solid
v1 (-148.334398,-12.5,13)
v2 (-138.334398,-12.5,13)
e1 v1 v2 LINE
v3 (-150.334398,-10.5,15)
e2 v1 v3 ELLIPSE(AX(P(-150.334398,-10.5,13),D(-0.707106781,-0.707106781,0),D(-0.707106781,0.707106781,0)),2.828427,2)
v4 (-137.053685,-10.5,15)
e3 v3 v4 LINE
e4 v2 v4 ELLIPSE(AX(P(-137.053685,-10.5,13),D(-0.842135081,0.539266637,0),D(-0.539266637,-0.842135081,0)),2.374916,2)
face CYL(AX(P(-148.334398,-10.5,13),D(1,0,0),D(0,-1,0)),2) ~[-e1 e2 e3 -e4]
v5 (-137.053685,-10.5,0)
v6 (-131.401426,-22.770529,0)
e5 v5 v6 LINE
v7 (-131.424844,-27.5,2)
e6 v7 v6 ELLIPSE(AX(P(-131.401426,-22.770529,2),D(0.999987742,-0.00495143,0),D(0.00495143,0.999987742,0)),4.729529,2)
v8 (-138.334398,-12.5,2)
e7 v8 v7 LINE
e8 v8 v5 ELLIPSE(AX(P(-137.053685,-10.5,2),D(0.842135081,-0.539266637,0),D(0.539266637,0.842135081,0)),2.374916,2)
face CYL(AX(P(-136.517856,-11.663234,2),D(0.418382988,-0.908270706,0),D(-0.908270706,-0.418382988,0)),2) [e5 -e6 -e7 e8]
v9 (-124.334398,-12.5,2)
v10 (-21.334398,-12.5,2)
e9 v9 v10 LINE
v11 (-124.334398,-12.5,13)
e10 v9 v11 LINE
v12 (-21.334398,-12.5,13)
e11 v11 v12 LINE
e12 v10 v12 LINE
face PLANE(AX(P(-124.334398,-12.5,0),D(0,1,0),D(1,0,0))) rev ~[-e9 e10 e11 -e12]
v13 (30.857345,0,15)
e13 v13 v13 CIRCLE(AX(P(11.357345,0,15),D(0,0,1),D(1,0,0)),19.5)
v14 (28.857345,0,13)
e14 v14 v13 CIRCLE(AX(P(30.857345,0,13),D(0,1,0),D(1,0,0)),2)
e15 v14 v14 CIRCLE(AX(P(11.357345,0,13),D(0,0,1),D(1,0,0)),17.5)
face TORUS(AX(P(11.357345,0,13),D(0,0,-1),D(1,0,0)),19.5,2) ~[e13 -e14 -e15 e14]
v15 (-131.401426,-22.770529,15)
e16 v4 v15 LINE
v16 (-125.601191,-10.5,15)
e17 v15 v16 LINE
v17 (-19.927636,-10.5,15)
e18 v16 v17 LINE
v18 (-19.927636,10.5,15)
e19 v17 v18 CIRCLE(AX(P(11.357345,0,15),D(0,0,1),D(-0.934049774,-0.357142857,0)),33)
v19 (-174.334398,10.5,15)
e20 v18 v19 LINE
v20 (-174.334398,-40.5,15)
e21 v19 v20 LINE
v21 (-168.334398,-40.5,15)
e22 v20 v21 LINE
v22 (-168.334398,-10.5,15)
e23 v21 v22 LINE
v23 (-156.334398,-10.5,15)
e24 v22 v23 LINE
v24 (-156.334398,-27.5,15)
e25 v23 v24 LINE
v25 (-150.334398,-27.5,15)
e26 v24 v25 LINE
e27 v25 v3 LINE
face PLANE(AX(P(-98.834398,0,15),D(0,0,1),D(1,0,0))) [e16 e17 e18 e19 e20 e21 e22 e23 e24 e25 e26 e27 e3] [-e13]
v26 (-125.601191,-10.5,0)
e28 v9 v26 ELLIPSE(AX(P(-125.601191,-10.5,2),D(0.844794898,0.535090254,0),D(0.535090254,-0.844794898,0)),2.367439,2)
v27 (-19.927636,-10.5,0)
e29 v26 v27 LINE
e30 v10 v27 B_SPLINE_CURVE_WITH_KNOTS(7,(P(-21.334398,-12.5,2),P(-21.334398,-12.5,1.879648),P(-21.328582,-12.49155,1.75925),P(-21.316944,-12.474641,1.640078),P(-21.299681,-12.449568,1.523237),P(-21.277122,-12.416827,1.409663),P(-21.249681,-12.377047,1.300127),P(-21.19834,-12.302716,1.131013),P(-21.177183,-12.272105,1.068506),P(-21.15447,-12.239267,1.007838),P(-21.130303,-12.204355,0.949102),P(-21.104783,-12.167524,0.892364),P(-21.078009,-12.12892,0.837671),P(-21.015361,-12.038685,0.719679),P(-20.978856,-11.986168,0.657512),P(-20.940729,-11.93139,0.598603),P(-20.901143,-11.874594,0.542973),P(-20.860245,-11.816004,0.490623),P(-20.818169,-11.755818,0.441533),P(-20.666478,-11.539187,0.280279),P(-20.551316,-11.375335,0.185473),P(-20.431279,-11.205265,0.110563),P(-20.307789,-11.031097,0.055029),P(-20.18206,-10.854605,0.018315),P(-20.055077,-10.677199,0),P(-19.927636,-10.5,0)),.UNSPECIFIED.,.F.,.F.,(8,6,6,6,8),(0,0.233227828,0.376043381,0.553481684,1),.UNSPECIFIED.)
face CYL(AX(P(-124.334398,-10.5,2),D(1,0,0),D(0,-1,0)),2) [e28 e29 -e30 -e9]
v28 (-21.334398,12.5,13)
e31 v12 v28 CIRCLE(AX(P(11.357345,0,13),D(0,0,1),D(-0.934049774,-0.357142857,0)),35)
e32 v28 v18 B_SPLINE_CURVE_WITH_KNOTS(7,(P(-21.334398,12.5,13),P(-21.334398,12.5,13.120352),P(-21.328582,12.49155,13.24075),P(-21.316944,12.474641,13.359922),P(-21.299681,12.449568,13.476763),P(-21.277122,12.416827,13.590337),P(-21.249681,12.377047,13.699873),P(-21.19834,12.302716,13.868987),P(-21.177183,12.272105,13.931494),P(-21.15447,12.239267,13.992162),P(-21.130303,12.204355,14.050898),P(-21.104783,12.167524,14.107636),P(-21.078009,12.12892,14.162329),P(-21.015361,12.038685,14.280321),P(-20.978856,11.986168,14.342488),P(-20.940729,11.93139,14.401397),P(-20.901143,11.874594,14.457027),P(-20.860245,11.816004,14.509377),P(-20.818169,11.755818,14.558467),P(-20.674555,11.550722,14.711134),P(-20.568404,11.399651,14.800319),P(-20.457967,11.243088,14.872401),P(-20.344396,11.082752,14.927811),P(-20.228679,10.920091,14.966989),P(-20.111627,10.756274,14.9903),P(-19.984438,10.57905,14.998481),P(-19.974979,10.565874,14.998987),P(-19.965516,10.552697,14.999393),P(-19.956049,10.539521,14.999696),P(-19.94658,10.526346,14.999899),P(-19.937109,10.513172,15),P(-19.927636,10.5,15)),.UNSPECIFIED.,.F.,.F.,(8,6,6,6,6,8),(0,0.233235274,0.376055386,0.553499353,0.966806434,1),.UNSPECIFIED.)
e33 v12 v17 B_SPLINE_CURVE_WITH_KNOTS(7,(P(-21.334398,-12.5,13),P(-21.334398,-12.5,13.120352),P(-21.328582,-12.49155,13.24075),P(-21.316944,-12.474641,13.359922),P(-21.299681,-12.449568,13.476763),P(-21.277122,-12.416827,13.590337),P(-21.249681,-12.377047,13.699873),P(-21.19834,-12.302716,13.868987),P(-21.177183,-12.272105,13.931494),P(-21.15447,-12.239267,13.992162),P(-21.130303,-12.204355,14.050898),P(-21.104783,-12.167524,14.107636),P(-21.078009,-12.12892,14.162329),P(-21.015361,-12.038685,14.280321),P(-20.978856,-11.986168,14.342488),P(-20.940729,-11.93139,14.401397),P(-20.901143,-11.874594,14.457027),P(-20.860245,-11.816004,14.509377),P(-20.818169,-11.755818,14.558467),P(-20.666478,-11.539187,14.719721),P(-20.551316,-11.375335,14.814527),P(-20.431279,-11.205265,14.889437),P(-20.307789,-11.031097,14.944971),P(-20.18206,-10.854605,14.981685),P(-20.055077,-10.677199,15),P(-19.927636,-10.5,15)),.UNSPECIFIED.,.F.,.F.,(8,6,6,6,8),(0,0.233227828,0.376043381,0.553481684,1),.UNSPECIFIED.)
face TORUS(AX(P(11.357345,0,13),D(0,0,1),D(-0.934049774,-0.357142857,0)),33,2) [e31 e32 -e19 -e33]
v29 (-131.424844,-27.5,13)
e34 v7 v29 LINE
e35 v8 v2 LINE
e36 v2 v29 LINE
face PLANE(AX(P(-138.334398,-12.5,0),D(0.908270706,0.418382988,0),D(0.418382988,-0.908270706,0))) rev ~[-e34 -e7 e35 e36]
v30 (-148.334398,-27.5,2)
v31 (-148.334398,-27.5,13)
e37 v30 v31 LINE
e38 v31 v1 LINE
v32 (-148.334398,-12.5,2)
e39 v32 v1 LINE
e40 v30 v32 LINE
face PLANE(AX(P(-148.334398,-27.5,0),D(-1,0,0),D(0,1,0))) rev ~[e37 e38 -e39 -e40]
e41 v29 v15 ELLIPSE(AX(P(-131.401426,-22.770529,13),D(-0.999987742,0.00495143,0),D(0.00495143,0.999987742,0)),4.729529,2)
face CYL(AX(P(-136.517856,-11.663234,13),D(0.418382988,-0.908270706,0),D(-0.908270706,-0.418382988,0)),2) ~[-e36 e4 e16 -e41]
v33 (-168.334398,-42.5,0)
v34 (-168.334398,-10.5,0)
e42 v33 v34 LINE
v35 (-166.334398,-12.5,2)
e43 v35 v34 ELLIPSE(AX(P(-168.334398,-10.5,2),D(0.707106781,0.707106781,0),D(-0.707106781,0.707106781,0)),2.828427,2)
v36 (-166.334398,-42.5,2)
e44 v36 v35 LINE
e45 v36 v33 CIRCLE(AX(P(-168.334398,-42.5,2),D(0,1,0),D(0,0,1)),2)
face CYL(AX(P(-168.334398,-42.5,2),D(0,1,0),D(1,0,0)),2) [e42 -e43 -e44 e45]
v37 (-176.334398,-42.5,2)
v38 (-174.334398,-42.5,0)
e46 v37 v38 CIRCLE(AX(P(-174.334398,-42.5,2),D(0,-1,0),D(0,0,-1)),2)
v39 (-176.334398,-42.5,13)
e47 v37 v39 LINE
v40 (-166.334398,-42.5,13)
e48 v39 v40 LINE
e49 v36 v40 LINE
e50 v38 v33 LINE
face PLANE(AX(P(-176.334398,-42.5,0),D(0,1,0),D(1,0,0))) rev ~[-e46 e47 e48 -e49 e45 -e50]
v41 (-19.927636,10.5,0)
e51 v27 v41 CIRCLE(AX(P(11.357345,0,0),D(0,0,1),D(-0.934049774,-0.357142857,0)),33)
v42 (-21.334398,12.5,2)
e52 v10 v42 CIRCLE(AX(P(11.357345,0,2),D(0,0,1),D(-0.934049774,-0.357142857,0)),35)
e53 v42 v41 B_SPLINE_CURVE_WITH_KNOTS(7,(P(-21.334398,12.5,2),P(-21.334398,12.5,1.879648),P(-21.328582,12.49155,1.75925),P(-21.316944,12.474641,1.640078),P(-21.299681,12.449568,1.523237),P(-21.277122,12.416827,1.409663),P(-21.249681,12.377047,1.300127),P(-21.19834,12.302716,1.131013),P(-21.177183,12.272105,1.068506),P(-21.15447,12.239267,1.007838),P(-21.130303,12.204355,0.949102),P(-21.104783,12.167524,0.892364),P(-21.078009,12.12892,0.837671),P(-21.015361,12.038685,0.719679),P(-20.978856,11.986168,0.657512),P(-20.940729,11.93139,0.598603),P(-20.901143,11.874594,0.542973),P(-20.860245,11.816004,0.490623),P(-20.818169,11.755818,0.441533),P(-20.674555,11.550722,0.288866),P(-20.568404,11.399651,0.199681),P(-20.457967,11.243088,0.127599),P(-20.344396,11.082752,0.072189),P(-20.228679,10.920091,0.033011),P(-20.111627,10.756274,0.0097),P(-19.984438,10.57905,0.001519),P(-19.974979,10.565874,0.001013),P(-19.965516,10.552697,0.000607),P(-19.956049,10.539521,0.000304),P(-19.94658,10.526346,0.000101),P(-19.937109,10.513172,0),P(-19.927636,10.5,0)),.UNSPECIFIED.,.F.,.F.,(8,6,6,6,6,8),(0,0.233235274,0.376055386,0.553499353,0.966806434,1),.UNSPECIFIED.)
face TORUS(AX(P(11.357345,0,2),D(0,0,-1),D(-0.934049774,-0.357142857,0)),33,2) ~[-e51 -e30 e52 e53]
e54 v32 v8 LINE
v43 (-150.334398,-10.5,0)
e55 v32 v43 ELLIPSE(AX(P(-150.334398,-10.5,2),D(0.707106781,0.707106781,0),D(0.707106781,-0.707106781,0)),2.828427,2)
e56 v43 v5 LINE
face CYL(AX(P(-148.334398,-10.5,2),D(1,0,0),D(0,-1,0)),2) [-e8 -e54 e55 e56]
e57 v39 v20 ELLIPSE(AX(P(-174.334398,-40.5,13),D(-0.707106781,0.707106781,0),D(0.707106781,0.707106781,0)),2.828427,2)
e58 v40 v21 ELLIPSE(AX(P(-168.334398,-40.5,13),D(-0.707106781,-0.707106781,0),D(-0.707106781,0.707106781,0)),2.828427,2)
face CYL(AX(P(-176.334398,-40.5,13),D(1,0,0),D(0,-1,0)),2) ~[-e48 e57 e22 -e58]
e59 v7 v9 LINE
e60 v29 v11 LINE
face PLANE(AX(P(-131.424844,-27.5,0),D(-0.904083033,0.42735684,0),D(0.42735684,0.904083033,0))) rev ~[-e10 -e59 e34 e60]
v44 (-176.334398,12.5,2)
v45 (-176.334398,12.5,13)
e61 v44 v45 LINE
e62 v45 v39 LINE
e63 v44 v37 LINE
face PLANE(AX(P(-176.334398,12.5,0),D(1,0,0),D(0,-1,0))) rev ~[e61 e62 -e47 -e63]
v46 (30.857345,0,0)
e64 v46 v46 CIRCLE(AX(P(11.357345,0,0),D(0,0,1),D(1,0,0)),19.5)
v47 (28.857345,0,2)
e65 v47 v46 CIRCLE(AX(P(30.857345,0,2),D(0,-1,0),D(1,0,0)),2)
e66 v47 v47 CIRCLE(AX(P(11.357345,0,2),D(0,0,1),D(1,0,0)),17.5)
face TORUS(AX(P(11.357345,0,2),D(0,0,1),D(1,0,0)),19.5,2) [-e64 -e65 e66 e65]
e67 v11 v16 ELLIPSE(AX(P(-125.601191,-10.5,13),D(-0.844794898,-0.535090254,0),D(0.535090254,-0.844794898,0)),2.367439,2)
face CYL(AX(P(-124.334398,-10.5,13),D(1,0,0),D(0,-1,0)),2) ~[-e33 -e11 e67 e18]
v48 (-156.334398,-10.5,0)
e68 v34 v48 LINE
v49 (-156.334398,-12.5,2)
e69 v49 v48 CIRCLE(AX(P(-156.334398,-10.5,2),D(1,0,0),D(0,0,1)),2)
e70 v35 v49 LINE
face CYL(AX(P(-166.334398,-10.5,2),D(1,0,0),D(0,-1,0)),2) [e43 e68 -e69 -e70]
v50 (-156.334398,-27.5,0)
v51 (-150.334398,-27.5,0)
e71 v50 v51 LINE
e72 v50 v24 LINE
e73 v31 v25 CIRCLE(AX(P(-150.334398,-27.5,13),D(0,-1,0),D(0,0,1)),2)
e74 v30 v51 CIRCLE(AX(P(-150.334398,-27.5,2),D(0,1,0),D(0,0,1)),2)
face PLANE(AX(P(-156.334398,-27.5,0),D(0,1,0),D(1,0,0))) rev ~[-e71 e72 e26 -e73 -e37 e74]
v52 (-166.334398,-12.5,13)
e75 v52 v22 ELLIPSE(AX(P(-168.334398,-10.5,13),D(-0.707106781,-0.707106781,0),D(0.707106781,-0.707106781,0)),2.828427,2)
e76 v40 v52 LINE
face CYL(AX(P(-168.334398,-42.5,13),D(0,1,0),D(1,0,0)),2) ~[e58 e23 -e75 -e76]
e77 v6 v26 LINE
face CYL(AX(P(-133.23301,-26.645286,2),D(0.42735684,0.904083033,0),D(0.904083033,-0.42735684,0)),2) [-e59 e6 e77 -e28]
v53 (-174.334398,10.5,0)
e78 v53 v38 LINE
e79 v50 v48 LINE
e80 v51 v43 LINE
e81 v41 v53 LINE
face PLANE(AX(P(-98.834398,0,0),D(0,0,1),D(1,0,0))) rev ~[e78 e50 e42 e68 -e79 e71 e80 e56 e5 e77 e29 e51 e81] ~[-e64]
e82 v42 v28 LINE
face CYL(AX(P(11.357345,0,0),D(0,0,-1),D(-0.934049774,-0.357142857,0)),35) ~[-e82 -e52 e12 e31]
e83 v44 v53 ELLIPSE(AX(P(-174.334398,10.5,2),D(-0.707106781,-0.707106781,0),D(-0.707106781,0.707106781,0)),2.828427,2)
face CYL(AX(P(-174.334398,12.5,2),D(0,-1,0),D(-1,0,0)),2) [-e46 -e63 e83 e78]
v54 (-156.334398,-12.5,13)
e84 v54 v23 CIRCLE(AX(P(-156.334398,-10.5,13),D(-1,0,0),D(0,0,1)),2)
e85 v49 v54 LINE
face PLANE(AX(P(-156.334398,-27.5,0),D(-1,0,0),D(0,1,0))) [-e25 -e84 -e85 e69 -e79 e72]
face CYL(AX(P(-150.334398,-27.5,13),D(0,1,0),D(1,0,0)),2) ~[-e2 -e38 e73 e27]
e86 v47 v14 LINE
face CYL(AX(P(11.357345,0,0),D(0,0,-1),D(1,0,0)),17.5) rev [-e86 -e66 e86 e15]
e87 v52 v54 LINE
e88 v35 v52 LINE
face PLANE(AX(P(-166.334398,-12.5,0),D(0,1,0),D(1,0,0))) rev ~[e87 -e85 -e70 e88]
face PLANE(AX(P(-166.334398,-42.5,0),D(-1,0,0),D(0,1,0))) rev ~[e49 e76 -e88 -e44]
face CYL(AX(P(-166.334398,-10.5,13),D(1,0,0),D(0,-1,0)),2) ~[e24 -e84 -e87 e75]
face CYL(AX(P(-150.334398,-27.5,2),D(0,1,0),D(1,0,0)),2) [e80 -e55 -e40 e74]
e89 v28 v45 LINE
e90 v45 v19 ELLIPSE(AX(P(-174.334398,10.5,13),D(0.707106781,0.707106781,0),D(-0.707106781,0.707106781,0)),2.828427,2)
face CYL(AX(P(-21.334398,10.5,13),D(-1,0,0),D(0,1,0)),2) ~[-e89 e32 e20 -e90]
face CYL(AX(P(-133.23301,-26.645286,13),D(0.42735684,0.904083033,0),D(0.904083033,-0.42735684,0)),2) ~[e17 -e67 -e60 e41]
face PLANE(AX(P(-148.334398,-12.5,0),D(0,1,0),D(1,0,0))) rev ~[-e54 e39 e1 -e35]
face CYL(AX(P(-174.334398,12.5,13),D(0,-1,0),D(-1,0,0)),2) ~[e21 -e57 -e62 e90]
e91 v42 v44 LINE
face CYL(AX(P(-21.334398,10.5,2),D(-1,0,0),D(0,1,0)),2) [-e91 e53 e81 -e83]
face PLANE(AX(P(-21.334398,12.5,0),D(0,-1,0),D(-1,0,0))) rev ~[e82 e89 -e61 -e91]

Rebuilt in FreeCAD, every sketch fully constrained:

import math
import FreeCAD as App
import Part
import Sketcher

V = App.Vector


def edges_at(feature, points):
    """Names of the edges that pass closest to the given points."""
    edges = feature.Shape.Edges
    near = lambda p: min(range(len(edges)), key=lambda i: edges[i].distToShape(Part.Vertex(*p))[0])
    return sorted({f"Edge{near(p) + 1}" for p in points})

doc = App.newDocument("Part")
params = doc.addObject("Spreadsheet::Sheet", "Params")
for row, (alias, value) in enumerate([
    ("sketch1_diameter", "35 mm"),
    ("sketch1_radius", "35 mm"),
    ("sketch1_width", "155 mm"),
    ("sketch1_width2", "10 mm"),
    ("sketch1_width3", "8 mm"),
    ("pad1_length", "15 mm"),
    ("fillet_radius", "2 mm"),
], start=1):
    params.set(f"A{row}", alias)
    params.set(f"B{row}", "=" + value)
    params.setAlias(f"B{row}", alias)

body = doc.addObject("PartDesign::Body", "Body")

# Sketch on XY plane
sketch1 = doc.addObject("Sketcher::SketchObject", "Sketch")
body.addObject(sketch1)
sketch1.AttachmentSupport = (doc.XY_Plane, [""])
sketch1.MapMode = "FlatFace"
sketch1.addGeometry([
    Part.LineSegment(V(-21, 12, 0), V(-176, 12, 0)),  # 0
    Part.LineSegment(V(-176, 12, 0), V(-176, -42, 0)),  # 1
    Part.LineSegment(V(-176, -42, 0), V(-166, -42, 0)),  # 2
    Part.LineSegment(V(-166, -42, 0), V(-166, -12, 0)),  # 3
    Part.LineSegment(V(-166, -12, 0), V(-156, -12, 0)),  # 4
    Part.LineSegment(V(-156, -12, 0), V(-156, -28, 0)),  # 5
    Part.LineSegment(V(-156, -28, 0), V(-148, -28, 0)),  # 6
    Part.LineSegment(V(-148, -28, 0), V(-148, -12, 0)),  # 7
    Part.LineSegment(V(-148, -12, 0), V(-138, -12, 0)),  # 8
    Part.LineSegment(V(-138, -12, 0), V(-131, -28, 0)),  # 9
    Part.LineSegment(V(-131, -28, 0), V(-124, -12, 0)),  # 10
    Part.LineSegment(V(-124, -12, 0), V(-21, -12, 0)),  # 11
    Part.ArcOfCircle(Part.Circle(V(11, 0, 0), V(0, 0, 1), 35), math.radians(-159), math.radians(159)),  # 12
    Part.Circle(V(11, 0, 0), V(0, 0, 1), 18),  # 13
], False)
sketch1.addConstraint([
    Sketcher.Constraint("Coincident", 0, 2, 1, 1),
    Sketcher.Constraint("Coincident", 1, 2, 2, 1),
    Sketcher.Constraint("Coincident", 2, 2, 3, 1),
    Sketcher.Constraint("Coincident", 3, 2, 4, 1),
    Sketcher.Constraint("Coincident", 4, 2, 5, 1),
    Sketcher.Constraint("Coincident", 5, 2, 6, 1),
    Sketcher.Constraint("Coincident", 6, 2, 7, 1),
    Sketcher.Constraint("Coincident", 7, 2, 8, 1),
    Sketcher.Constraint("Coincident", 8, 2, 9, 1),
    Sketcher.Constraint("Coincident", 9, 2, 10, 1),
    Sketcher.Constraint("Coincident", 10, 2, 11, 1),
    Sketcher.Constraint("Coincident", 11, 2, 12, 1),
    Sketcher.Constraint("Coincident", 12, 2, 0, 1),
    Sketcher.Constraint("Horizontal", 0),
    Sketcher.Constraint("Vertical", 1),
    Sketcher.Constraint("Horizontal", 2),
    Sketcher.Constraint("Vertical", 3),
    Sketcher.Constraint("Horizontal", 4),
    Sketcher.Constraint("Vertical", 5),
    Sketcher.Constraint("Horizontal", 6),
    Sketcher.Constraint("Vertical", 7),
    Sketcher.Constraint("Horizontal", 8),
    Sketcher.Constraint("Horizontal", 11),
    Sketcher.Constraint("Coincident", 13, 3, 12, 3),
    Sketcher.Constraint("Symmetric", 11, 2, 12, 2, -1),
    Sketcher.Constraint("Horizontal", 4, 2, 7, 2),
    Sketcher.Constraint("Horizontal", 6, 2, 9, 2),
    Sketcher.Constraint("Horizontal", 8, 2, 10, 2),
    Sketcher.Constraint("Equal", 2, 4),
    Sketcher.Constraint("Equal", 4, 8),
    Sketcher.Constraint("Diameter", 13, 35.0),
    Sketcher.Constraint("Radius", 12, 35.0),
    Sketcher.Constraint("DistanceX", 0, 2, 0, 1, 155.0),
    Sketcher.Constraint("DistanceX", 2, 1, 2, 2, 10.0),
    Sketcher.Constraint("DistanceX", 6, 1, 6, 2, 8.0),
    Sketcher.Constraint("DistanceX", 11, 1, 11, 2, 103.0),
    Sketcher.Constraint("DistanceY", 1, 2, 1, 1, 55.0),
    Sketcher.Constraint("DistanceY", 3, 1, 3, 2, 30.0),
    Sketcher.Constraint("DistanceY", 5, 2, 5, 1, 15.0),
    Sketcher.Constraint("Distance", 9, 16.5149),
    Sketcher.Constraint("DistanceX", -1, 1, 12, 3, 11.357345),
])
sketch1.setExpression("Constraints[30]", "Params.sketch1_diameter")
sketch1.setExpression("Constraints[31]", "Params.sketch1_radius")
sketch1.setExpression("Constraints[32]", "Params.sketch1_width")
sketch1.setExpression("Constraints[33]", "Params.sketch1_width2")
sketch1.setExpression("Constraints[34]", "Params.sketch1_width3")
pad1 = doc.addObject("PartDesign::Pad", "Pad")
body.addObject(pad1)
pad1.Profile = sketch1
pad1.setExpression("Length", "Params.pad1_length")
doc.recompute()

fillet = doc.addObject("PartDesign::Fillet", "Fillet")
body.addObject(fillet)
fillet.Base = (pad1, edges_at(pad1, [
    (-98.834, 12.5, 15),
    (-72.834, -12.5, 15),
    (-127.88, -20, 15),
    (-134.88, -20, 15),
    (-148.334, -20, 15),
    (-143.334, -12.5, 15),
    (-161.334, -12.5, 15),
    (-166.334, -27.5, 15),
    (-171.334, -42.5, 15),
    (-176.334, -15, 15),
    (46.357, 0, 15),
    (-6.143, 0, 15),
    (-98.834, 12.5, 0),
    (-72.834, -12.5, 0),
    (-127.88, -20, 0),
    (-143.334, -12.5, 0),
    (-134.88, -20, 0),
    (-148.334, -20, 0),
    (46.357, 0, 0),
    (-6.143, 0, 0),
    (-176.334, -15, 0),
    (-166.334, -27.5, 0),
    (-161.334, -12.5, 0),
]))
fillet.setExpression("Radius", "Params.fillet_radius")

doc.recompute()
